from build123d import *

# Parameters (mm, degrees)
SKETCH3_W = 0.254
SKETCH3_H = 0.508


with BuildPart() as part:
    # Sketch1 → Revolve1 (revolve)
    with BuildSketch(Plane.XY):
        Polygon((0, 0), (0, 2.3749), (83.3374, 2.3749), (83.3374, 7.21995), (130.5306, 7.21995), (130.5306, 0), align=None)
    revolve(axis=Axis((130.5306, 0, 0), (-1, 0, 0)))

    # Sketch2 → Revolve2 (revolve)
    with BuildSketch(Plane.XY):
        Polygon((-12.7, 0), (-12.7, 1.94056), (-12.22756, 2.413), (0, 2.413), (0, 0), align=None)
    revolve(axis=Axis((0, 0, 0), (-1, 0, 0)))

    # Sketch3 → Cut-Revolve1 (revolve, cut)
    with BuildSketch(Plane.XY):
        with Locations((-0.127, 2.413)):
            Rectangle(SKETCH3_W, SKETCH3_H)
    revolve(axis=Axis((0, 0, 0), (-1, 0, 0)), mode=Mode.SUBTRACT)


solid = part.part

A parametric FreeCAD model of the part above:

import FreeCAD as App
import Part
import Sketcher
from FreeCAD import Vector
Q = App.Units.Quantity


def add_polygon(sketch, points):
    """Adds a closed chain of lines whose ends are joined by coincident constraints."""
    first, n = sketch.GeometryCount, len(points)
    for a, b in zip(points, points[1:] + points[:1]):
        sketch.addGeometry(Part.LineSegment(App.Vector(*a, 0), App.Vector(*b, 0)), False)
    for i in range(n):
        sketch.addConstraint(Sketcher.Constraint("Coincident", first + i, 2, first + (i + 1) % n, 1))

doc = App.newDocument("Part")
params = doc.addObject("Spreadsheet::Sheet", "Params")
for row, (alias, value) in enumerate([
    ("sketch1_width", "5.139 in"),
    ("sketch1_width2", "1.858 in"),
    ("revolution_angle", "360 deg"),
    ("sketch2_width", "0.5 in"),
    ("sketch2_height", "0.095 in"),
    ("revolution2_angle", "360 deg"),
    ("sketch3_width", "0.01 in"),
    ("sketch3_height", "0.02 in"),
    ("groove_angle", "360 deg"),
], start=1):
    params.set(f"A{row}", alias)
    params.set(f"B{row}", "=" + value)
    params.setAlias(f"B{row}", alias)

body = doc.addObject("PartDesign::Body", "Body")

# Sketch on XY plane
sketch1 = doc.addObject("Sketcher::SketchObject", "Sketch")
body.addObject(sketch1)
sketch1.AttachmentSupport = (doc.XY_Plane, [""])
sketch1.MapMode = "FlatFace"
add_polygon(sketch1, [(0, 2.4), (0, 0), (130.5, 0), (130.5, 7.2), (83.3, 7.2), (83.3, 2.4)])  # lines 0-5
sketch1.addConstraint(Sketcher.Constraint("Vertical", 0))
sketch1.addConstraint(Sketcher.Constraint("Horizontal", 1))
sketch1.addConstraint(Sketcher.Constraint("Vertical", 2))
sketch1.addConstraint(Sketcher.Constraint("Horizontal", 3))
sketch1.addConstraint(Sketcher.Constraint("Vertical", 4))
sketch1.addConstraint(Sketcher.Constraint("Horizontal", 5))
sketch1.addConstraint(Sketcher.Constraint("Coincident", 0, 2, -1, 1))
sketch1.addConstraint(Sketcher.Constraint("DistanceX", 1, 1, 1, 2, Q("5.139 in")))
sketch1.addConstraint(Sketcher.Constraint("DistanceX", 3, 2, 3, 1, Q("1.858 in")))
sketch1.addConstraint(Sketcher.Constraint("DistanceY", 0, 2, 0, 1, Q("0.0935 in")))
sketch1.addConstraint(Sketcher.Constraint("DistanceY", 2, 1, 2, 2, Q("7.21995 mm")))
sketch1.setExpression("Constraints[13]", "Params.sketch1_width")
sketch1.setExpression("Constraints[14]", "Params.sketch1_width2")
revolution = doc.addObject("PartDesign::Revolution", "Revolution")
body.addObject(revolution)
revolution.Profile = sketch1
revolution.ReferenceAxis = (sketch1, ["H_Axis"])
revolution.setExpression("Angle", "Params.revolution_angle")

# Sketch on XY plane
sketch2 = doc.addObject("Sketcher::SketchObject", "Sketch001")
body.addObject(sketch2)
sketch2.AttachmentSupport = (doc.XY_Plane, [""])
sketch2.MapMode = "FlatFace"
add_polygon(sketch2, [(-12.7, 1.9), (-12.7, 0), (0, 0), (0, 2.4), (-12.2, 2.4)])  # lines 0-4
sketch2.addConstraint(Sketcher.Constraint("Vertical", 0))
sketch2.addConstraint(Sketcher.Constraint("Horizontal", 1))
sketch2.addConstraint(Sketcher.Constraint("Vertical", 2))
sketch2.addConstraint(Sketcher.Constraint("Horizontal", 3))
sketch2.addConstraint(Sketcher.Constraint("Coincident", 1, 2, -1, 1))
sketch2.addConstraint(Sketcher.Constraint("DistanceX", 1, 1, 1, 2, Q("0.5 in")))
sketch2.addConstraint(Sketcher.Constraint("Angle", 4, Q("-135 deg")))
sketch2.addConstraint(Sketcher.Constraint("DistanceY", 2, 1, 2, 2, Q("0.095 in")))
sketch2.addConstraint(Sketcher.Constraint("DistanceX", 3, 2, 3, 1, Q("0.4814 in")))
sketch2.setExpression("Constraints[10]", "Params.sketch2_width")
sketch2.setExpression("Constraints[12]", "Params.sketch2_height")
revolution2 = doc.addObject("PartDesign::Revolution", "Revolution001")
body.addObject(revolution2)
revolution2.Profile = sketch2
revolution2.ReferenceAxis = (sketch2, ["H_Axis"])
revolution2.setExpression("Angle", "Params.revolution2_angle")

# Sketch on XY plane
sketch3 = doc.addObject("Sketcher::SketchObject", "Sketch002")
body.addObject(sketch3)
sketch3.AttachmentSupport = (doc.XY_Plane, [""])
sketch3.MapMode = "FlatFace"
add_polygon(sketch3, [(-0.25, 2.67), (-0.25, 2.16), (0, 2.16), (0, 2.67)])  # lines 0-3
sketch3.addConstraint(Sketcher.Constraint("Vertical", 0))
sketch3.addConstraint(Sketcher.Constraint("Horizontal", 1))
sketch3.addConstraint(Sketcher.Constraint("Vertical", 2))
sketch3.addConstraint(Sketcher.Constraint("Horizontal", 3))
sketch3.addConstraint(Sketcher.Constraint("PointOnObject", 1, 2, -2))
sketch3.addConstraint(Sketcher.Constraint("DistanceX", 1, 1, 1, 2, Q("0.01 in")))
sketch3.addConstraint(Sketcher.Constraint("DistanceY", 0, 2, 0, 1, Q("0.02 in")))
sketch3.addConstraint(Sketcher.Constraint("DistanceY", -1, 1, 0, 2, Q("0.085 in")))
sketch3.setExpression("Constraints[9]", "Params.sketch3_width")
sketch3.setExpression("Constraints[10]", "Params.sketch3_height")
groove = doc.addObject("PartDesign::Groove", "Groove")
body.addObject(groove)
groove.Profile = sketch3
groove.ReferenceAxis = (sketch3, ["H_Axis"])
groove.setExpression("Angle", "Params.groove_angle")

doc.recompute()
